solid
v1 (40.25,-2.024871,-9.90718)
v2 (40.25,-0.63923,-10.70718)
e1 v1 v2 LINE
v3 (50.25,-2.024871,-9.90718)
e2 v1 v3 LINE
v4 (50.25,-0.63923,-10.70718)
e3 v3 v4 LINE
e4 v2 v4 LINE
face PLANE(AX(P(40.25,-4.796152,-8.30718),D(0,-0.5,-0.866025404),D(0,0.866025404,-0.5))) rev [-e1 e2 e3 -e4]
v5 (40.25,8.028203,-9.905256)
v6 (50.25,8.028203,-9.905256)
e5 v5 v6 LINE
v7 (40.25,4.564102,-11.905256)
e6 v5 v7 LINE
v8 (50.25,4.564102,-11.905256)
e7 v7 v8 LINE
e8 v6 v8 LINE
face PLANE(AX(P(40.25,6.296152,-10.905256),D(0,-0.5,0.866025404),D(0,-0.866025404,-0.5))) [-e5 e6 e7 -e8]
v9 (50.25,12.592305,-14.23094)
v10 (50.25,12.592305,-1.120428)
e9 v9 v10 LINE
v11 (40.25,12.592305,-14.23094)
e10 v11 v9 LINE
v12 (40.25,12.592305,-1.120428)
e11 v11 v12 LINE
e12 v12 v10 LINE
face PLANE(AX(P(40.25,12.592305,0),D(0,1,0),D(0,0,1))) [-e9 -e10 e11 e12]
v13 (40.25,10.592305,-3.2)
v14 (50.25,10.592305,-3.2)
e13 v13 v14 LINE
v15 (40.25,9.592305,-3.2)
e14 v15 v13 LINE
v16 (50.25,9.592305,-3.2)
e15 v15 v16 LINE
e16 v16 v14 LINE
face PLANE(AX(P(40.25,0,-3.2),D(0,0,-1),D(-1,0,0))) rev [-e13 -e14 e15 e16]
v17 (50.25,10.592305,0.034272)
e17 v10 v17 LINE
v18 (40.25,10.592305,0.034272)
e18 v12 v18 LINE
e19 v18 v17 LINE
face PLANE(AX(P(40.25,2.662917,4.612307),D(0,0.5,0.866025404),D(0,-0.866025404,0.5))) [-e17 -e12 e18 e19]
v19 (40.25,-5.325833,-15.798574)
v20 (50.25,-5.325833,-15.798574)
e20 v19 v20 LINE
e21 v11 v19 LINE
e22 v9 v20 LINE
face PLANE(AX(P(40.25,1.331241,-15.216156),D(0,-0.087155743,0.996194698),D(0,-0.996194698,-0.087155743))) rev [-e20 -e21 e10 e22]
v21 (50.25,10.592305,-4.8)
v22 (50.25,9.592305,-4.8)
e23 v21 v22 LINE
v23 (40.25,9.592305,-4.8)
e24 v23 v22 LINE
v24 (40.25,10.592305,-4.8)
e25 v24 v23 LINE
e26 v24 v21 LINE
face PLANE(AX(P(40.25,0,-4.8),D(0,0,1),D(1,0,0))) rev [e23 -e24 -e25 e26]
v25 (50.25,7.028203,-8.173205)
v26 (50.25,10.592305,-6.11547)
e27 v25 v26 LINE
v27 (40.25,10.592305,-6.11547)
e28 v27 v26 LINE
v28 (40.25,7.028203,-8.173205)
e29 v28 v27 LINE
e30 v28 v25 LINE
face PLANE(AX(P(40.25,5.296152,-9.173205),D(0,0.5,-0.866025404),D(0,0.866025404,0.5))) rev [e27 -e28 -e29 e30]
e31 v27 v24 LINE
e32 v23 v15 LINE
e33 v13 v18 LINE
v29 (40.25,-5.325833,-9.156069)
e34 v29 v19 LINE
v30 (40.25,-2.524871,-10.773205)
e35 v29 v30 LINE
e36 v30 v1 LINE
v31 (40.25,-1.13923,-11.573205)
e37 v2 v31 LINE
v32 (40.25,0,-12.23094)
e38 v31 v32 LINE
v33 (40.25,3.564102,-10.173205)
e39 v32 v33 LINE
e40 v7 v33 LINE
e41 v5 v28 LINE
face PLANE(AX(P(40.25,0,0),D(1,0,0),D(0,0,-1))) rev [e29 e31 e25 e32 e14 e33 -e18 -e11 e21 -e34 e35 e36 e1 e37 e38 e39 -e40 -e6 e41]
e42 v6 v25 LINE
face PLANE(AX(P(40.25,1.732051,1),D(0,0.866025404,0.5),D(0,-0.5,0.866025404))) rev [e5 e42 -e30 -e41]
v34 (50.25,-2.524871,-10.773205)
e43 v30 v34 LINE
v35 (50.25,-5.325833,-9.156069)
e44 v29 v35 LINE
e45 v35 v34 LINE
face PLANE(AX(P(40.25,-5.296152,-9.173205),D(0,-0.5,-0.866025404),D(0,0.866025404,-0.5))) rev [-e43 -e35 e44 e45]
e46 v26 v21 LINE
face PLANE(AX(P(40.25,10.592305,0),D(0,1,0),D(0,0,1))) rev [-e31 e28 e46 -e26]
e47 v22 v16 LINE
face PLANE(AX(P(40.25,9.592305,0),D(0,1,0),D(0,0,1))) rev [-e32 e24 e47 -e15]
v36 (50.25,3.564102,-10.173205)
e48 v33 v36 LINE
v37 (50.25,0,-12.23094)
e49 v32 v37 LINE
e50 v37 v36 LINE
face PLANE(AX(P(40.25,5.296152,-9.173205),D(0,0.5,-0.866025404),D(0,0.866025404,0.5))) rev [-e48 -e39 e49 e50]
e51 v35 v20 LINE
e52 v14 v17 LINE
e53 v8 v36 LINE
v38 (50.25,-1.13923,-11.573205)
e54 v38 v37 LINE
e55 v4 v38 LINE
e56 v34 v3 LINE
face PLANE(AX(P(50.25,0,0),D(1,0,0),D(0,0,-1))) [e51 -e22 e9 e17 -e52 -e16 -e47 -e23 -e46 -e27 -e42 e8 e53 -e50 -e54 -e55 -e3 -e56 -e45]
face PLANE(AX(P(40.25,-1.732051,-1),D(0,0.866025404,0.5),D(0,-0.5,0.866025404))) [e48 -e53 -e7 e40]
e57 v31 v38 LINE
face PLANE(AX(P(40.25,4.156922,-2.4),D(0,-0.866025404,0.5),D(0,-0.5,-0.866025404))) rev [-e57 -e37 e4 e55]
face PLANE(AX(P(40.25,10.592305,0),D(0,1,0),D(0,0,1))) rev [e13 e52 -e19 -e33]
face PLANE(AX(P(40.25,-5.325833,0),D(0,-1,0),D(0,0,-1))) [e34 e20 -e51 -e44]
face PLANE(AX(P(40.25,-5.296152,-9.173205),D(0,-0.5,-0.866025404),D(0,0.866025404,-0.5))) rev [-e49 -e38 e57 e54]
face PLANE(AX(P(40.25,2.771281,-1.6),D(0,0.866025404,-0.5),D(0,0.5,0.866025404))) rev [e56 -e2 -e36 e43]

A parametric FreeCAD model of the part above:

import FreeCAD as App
import Part
import Sketcher

V = App.Vector
Q = App.Units.Quantity

doc = App.newDocument("Part")
body = doc.addObject("PartDesign::Body", "Body")

# Sketch on YZ plane
sketch1 = doc.addObject("Sketcher::SketchObject", "Sketch")
body.addObject(sketch1)
sketch1.AttachmentSupport = (doc.YZ_Plane, [""])
sketch1.MapMode = "FlatFace"
sketch1.AttachmentOffset = App.Placement(V(0, 0, 50.25), App.Rotation())
sketch1.addGeometry(Part.LineSegment(V(10.6, -6.1, 0), V(7, -8.2, 0)), False)
sketch1.addGeometry(Part.LineSegment(V(7, -8.2, 0), V(8, -9.9, 0)), False)
sketch1.addGeometry(Part.LineSegment(V(8, -9.9, 0), V(4.6, -11.9, 0)), False)
sketch1.addGeometry(Part.LineSegment(V(4.6, -11.9, 0), V(3.6, -10.2, 0)), False)
sketch1.addGeometry(Part.LineSegment(V(3.6, -10.2, 0), V(0, -12.2, 0)), False)
sketch1.addGeometry(Part.LineSegment(V(0, -12.2, 0), V(-1.1, -11.6, 0)), False)
sketch1.addGeometry(Part.LineSegment(V(-1.1, -11.6, 0), V(-0.6, -10.7, 0)), False)
sketch1.addGeometry(Part.LineSegment(V(-0.6, -10.7, 0), V(-2, -9.9, 0)), False)
sketch1.addGeometry(Part.LineSegment(V(-2, -9.9, 0), V(-2.5, -10.8, 0)), False)
sketch1.addGeometry(Part.LineSegment(V(-2.5, -10.8, 0), V(-5.3, -9.2, 0)), False)
sketch1.addGeometry(Part.LineSegment(V(-5.3, -9.2, 0), V(-5.3, -15.8, 0)), False)
sketch1.addGeometry(Part.LineSegment(V(-5.3, -15.8, 0), V(12.6, -14.2, 0)), False)
sketch1.addGeometry(Part.LineSegment(V(12.6, -14.2, 0), V(12.6, -1.1, 0)), False)
sketch1.addGeometry(Part.LineSegment(V(12.6, -1.1, 0), V(10.6, 0, 0)), False)
sketch1.addGeometry(Part.LineSegment(V(10.6, 0, 0), V(10.6, -3.2, 0)), False)
sketch1.addGeometry(Part.LineSegment(V(10.6, -3.2, 0), V(9.6, -3.2, 0)), False)
sketch1.addGeometry(Part.LineSegment(V(9.6, -3.2, 0), V(9.6, -4.8, 0)), False)
sketch1.addGeometry(Part.LineSegment(V(9.6, -4.8, 0), V(10.6, -4.8, 0)), False)
sketch1.addGeometry(Part.LineSegment(V(10.6, -4.8, 0), V(10.6, -6.1, 0)), False)
sketch1.addConstraint(Sketcher.Constraint("Coincident", 0, 2, 1, 1))
sketch1.addConstraint(Sketcher.Constraint("Coincident", 1, 2, 2, 1))
sketch1.addConstraint(Sketcher.Constraint("Coincident", 2, 2, 3, 1))
sketch1.addConstraint(Sketcher.Constraint("Coincident", 3, 2, 4, 1))
sketch1.addConstraint(Sketcher.Constraint("Coincident", 4, 2, 5, 1))
sketch1.addConstraint(Sketcher.Constraint("Coincident", 5, 2, 6, 1))
sketch1.addConstraint(Sketcher.Constraint("Coincident", 6, 2, 7, 1))
sketch1.addConstraint(Sketcher.Constraint("Coincident", 7, 2, 8, 1))
sketch1.addConstraint(Sketcher.Constraint("Coincident", 8, 2, 9, 1))
sketch1.addConstraint(Sketcher.Constraint("Coincident", 9, 2, 10, 1))
sketch1.addConstraint(Sketcher.Constraint("Coincident", 10, 2, 11, 1))
sketch1.addConstraint(Sketcher.Constraint("Coincident", 11, 2, 12, 1))
sketch1.addConstraint(Sketcher.Constraint("Coincident", 12, 2, 13, 1))
sketch1.addConstraint(Sketcher.Constraint("Coincident", 13, 2, 14, 1))
sketch1.addConstraint(Sketcher.Constraint("Coincident", 14, 2, 15, 1))
sketch1.addConstraint(Sketcher.Constraint("Coincident", 15, 2, 16, 1))
sketch1.addConstraint(Sketcher.Constraint("Coincident", 16, 2, 17, 1))
sketch1.addConstraint(Sketcher.Constraint("Coincident", 17, 2, 18, 1))
sketch1.addConstraint(Sketcher.Constraint("Coincident", 18, 2, 0, 1))
sketch1.addConstraint(Sketcher.Constraint("Vertical", 10))
sketch1.addConstraint(Sketcher.Constraint("Vertical", 12))
sketch1.addConstraint(Sketcher.Constraint("Vertical", 14))
sketch1.addConstraint(Sketcher.Constraint("Horizontal", 15))
sketch1.addConstraint(Sketcher.Constraint("Vertical", 16))
sketch1.addConstraint(Sketcher.Constraint("Horizontal", 17))
sketch1.addConstraint(Sketcher.Constraint("Vertical", 18))
sketch1.addConstraint(Sketcher.Constraint("PointOnObject", 4, 2, -2))
sketch1.addConstraint(Sketcher.Constraint("Perpendicular", 0, 1))
sketch1.addConstraint(Sketcher.Constraint("Perpendicular", 1, 2))
sketch1.addConstraint(Sketcher.Constraint("Perpendicular", 2, 3))
sketch1.addConstraint(Sketcher.Constraint("Perpendicular", 3, 4))
sketch1.addConstraint(Sketcher.Constraint("Perpendicular", 5, 6))
sketch1.addConstraint(Sketcher.Constraint("Perpendicular", 6, 7))
sketch1.addConstraint(Sketcher.Constraint("Perpendicular", 7, 8))
sketch1.addConstraint(Sketcher.Constraint("Perpendicular", 8, 9))
sketch1.addConstraint(Sketcher.Constraint("Parallel", 9, 13))
sketch1.addConstraint(Sketcher.Constraint("Vertical", 14, 2, 17, 2))
sketch1.addConstraint(Sketcher.Constraint("Equal", 1, 3))
sketch1.addConstraint(Sketcher.Constraint("Equal", 0, 4))
sketch1.addConstraint(Sketcher.Constraint("Equal", 6, 8))
sketch1.addConstraint(Sketcher.Constraint("DistanceX", 15, 2, 15, 1, Q("1 mm")))
sketch1.addConstraint(Sketcher.Constraint("Angle", 0, Q("-150 deg")))
sketch1.addConstraint(Sketcher.Constraint("Angle", 5, Q("150 deg")))
sketch1.addConstraint(Sketcher.Constraint("Angle", 11, Q("5 deg")))
sketch1.addConstraint(Sketcher.Constraint("Distance", 1, Q("2 mm")))
sketch1.addConstraint(Sketcher.Constraint("Distance", 2, Q("4 mm")))
sketch1.addConstraint(Sketcher.Constraint("Distance", 6, Q("1 mm")))
sketch1.addConstraint(Sketcher.Constraint("DistanceY", 16, 2, 16, 1, Q("1.6 mm")))
sketch1.addConstraint(Sketcher.Constraint("DistanceY", 11, 2, 4, 2, Q("2 mm")))
sketch1.addConstraint(Sketcher.Constraint("DistanceX", 13, 2, 12, 2, Q("2 mm")))
sketch1.addConstraint(Sketcher.Constraint("Distance", 7, Q("1.6 mm")))
sketch1.addConstraint(Sketcher.Constraint("DistanceY", 14, 2, -1, 1, Q("3.2 mm")))
sketch1.addConstraint(Sketcher.Constraint("DistanceY", 5, 2, 3, 2, Q("1.4 mm")))
sketch1.addConstraint(Sketcher.Constraint("DistanceY", 12, 1, 12, 2, Q("13.110512 mm")))
sketch1.addConstraint(Sketcher.Constraint("DistanceY", 18, 2, 18, 1, Q("1.31547 mm")))
sketch1.addConstraint(Sketcher.Constraint("DistanceX", -1, 1, 2, 2, Q("4.564102 mm")))
sketch1.addConstraint(Sketcher.Constraint("DistanceY", 10, 2, 10, 1, Q("6.642505 mm")))
pad1 = doc.addObject("PartDesign::Pad", "Pad")
body.addObject(pad1)
pad1.Profile = sketch1
pad1.Length = 10
pad1.Reversed = True

doc.recompute()
